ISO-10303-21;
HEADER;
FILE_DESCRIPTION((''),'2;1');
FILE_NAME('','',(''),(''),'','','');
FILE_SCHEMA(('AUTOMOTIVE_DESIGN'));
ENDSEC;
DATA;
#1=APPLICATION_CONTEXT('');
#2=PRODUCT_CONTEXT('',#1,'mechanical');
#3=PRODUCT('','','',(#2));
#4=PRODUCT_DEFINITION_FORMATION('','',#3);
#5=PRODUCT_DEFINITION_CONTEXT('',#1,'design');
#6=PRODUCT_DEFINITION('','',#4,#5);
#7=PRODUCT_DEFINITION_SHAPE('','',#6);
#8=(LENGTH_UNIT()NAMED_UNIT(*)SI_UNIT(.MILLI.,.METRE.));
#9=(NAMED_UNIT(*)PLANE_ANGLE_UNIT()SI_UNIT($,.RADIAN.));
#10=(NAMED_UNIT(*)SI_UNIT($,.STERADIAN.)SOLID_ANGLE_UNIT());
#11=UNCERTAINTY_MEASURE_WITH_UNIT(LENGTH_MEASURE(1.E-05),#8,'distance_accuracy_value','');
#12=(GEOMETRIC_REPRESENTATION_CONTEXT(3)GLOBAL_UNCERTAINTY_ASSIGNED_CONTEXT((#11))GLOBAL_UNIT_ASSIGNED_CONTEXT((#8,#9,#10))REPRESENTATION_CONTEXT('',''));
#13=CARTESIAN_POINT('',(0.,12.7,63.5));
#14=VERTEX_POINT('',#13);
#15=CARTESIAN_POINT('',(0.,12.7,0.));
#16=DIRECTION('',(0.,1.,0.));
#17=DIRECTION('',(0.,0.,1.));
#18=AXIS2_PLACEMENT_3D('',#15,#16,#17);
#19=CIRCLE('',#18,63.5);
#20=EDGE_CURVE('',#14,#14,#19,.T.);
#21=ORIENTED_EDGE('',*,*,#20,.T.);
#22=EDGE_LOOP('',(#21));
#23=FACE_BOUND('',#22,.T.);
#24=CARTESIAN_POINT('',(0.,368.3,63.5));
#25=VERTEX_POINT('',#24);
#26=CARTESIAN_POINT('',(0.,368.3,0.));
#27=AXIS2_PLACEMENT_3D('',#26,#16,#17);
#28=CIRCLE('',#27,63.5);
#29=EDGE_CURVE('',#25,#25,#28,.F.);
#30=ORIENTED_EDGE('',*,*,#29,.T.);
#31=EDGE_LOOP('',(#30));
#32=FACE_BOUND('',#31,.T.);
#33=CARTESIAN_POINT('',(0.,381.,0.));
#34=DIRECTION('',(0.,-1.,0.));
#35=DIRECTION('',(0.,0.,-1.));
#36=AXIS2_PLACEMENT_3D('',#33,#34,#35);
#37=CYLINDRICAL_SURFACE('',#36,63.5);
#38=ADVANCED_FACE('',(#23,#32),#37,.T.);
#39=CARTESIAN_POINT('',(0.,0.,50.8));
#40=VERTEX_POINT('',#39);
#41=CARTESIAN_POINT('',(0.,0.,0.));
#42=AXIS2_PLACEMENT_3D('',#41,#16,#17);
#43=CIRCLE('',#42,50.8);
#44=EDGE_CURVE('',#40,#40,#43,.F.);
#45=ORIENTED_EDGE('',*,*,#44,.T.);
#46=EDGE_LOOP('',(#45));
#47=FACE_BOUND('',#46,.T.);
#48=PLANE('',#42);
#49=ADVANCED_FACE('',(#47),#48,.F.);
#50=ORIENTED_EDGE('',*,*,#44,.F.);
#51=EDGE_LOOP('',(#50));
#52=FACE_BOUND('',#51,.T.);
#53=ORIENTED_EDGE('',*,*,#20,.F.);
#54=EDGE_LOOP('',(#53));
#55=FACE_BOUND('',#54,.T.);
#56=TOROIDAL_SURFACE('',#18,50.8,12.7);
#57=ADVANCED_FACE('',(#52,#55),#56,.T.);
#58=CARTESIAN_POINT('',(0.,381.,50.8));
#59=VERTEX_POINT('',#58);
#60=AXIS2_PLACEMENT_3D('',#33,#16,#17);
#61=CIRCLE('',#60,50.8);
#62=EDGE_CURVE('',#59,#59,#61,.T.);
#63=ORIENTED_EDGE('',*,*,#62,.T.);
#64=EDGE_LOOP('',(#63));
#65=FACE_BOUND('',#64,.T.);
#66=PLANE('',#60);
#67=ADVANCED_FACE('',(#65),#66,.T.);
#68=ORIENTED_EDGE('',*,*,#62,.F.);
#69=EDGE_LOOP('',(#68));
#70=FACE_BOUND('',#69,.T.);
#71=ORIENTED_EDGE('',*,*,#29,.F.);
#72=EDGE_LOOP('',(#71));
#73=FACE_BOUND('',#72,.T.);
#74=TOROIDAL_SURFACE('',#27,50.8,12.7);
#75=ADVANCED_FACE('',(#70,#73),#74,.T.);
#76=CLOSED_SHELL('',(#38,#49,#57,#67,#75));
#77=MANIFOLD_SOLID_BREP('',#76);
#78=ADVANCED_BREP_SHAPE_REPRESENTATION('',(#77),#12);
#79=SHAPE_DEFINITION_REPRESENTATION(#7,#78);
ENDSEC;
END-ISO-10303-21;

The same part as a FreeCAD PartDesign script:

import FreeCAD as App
import Part
import Sketcher

V = App.Vector
Q = App.Units.Quantity


def edges_at(feature, points):
    """Names of the edges that pass closest to the given points."""
    edges = feature.Shape.Edges
    near = lambda p: min(range(len(edges)), key=lambda i: edges[i].distToShape(Part.Vertex(*p))[0])
    return sorted({f"Edge{near(p) + 1}" for p in points})

doc = App.newDocument("Part")
body = doc.addObject("PartDesign::Body", "Body")

sketch1 = doc.addObject("Sketcher::SketchObject", "Sketch")
body.addObject(sketch1)
sketch1.AttachmentSupport = (doc.XZ_Plane, [""])
sketch1.MapMode = "FlatFace"
sketch1.addGeometry(Part.Circle(V(0, 0, 0), V(0, 0, 1), 63.5), False)
sketch1.addConstraint([
    Sketcher.Constraint("Coincident", 0, 3, -1, 1),
    Sketcher.Constraint("Diameter", 0, Q("5 in")),
])
pad1 = doc.addObject("PartDesign::Pad", "Pad")
body.addObject(pad1)
pad1.Profile = sketch1
pad1.Length = Q("15 in")
pad1.Reversed = True
doc.recompute()

fillet = doc.addObject("PartDesign::Fillet", "Fillet")
body.addObject(fillet)
fillet.Base = (pad1, edges_at(pad1, [(-63.5, 0, 0), (-63.5, 381, 0)]))
fillet.Radius = Q("0.5 in")

doc.recompute()
